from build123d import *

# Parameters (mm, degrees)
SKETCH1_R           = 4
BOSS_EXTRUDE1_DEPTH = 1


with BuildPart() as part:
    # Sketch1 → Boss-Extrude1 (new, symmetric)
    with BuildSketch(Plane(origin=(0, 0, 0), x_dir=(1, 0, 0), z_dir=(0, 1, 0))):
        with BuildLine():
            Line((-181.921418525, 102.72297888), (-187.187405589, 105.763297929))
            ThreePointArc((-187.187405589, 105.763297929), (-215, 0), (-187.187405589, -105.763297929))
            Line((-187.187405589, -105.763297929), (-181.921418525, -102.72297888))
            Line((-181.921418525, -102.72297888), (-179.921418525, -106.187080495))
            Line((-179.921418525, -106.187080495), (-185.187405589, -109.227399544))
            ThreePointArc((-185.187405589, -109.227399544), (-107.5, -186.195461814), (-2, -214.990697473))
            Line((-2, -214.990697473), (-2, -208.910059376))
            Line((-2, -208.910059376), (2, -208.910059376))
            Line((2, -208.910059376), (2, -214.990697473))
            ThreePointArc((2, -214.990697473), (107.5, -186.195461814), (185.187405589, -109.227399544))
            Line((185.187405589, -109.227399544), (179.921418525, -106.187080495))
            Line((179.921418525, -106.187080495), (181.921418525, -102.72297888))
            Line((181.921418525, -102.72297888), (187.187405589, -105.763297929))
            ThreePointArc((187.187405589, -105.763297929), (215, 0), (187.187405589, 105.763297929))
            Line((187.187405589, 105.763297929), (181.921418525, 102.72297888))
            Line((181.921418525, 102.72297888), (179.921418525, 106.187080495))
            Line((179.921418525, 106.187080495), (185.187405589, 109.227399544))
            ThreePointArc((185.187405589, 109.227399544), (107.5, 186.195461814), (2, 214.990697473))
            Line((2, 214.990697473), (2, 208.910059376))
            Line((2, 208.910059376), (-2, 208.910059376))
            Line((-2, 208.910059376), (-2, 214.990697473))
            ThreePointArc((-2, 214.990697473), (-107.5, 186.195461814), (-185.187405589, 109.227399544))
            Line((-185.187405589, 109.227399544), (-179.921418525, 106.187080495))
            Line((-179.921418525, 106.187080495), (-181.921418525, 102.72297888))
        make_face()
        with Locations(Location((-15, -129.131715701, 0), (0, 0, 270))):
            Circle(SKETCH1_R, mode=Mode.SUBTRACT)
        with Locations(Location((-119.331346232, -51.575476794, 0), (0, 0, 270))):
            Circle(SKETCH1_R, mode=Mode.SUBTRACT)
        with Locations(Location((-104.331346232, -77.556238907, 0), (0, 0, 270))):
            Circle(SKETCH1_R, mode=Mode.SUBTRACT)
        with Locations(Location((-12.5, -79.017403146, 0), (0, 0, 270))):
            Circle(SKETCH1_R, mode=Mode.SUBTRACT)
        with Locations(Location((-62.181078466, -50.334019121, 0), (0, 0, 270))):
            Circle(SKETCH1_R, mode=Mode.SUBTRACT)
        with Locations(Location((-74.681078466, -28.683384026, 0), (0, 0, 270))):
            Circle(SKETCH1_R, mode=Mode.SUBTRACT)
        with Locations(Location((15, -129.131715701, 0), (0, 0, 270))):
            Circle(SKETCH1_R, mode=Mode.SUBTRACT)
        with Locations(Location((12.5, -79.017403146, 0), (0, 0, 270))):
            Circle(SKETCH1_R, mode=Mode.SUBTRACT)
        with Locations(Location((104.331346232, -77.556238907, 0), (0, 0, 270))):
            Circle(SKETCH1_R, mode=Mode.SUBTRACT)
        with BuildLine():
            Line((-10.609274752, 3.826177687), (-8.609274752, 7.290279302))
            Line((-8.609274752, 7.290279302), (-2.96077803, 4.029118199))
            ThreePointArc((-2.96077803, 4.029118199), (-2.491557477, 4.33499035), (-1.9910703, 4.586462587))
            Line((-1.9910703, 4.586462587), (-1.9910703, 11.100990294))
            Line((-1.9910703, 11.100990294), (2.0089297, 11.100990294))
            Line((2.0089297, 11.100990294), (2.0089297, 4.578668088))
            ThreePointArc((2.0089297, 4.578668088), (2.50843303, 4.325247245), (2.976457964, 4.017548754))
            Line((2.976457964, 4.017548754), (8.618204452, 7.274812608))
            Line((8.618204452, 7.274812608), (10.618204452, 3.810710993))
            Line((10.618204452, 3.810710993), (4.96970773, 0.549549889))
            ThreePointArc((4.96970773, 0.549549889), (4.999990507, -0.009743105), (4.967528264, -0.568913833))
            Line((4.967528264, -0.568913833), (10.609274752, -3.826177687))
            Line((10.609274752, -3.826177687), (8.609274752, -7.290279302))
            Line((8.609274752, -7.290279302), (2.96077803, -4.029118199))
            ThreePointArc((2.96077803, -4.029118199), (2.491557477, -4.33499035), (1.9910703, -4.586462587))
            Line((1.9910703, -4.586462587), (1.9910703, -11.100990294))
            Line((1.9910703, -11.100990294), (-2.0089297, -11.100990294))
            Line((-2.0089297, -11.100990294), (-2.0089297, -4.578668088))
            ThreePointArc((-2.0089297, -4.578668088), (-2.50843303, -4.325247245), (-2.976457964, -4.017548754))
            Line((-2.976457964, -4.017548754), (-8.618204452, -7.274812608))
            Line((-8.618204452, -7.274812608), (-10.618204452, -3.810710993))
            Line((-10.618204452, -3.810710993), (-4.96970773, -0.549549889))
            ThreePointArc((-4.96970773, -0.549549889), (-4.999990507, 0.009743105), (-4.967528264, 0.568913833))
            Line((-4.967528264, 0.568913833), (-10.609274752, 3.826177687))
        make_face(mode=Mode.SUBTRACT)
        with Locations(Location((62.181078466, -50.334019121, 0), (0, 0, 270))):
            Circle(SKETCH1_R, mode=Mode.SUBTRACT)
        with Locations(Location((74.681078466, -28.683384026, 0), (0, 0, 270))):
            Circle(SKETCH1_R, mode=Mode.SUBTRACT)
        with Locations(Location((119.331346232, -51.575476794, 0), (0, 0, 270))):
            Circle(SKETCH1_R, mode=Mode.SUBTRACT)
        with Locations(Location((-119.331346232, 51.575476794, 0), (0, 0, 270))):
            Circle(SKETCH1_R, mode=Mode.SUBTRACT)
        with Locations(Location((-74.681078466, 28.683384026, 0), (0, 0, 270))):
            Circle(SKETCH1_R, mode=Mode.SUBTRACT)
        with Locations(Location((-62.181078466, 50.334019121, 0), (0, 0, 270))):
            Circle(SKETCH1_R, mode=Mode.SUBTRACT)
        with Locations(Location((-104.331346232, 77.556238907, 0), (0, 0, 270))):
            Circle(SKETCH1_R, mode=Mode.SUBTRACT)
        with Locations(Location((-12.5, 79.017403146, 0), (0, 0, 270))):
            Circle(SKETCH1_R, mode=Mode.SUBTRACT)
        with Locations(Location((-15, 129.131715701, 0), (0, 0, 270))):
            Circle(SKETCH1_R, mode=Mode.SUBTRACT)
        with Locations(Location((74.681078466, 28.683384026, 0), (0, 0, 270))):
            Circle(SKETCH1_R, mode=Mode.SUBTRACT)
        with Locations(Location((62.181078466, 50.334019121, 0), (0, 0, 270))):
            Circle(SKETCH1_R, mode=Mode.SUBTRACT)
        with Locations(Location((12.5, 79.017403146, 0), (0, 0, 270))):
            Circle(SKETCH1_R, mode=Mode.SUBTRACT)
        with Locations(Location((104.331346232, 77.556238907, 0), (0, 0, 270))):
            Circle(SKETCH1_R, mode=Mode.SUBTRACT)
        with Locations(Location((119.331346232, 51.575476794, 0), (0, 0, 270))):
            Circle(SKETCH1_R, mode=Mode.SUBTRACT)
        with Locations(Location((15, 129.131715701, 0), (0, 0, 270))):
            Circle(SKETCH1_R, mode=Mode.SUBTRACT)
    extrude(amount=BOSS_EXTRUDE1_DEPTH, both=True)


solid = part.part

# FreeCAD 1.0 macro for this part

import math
import FreeCAD as App
import Part
import Sketcher

V = App.Vector
Q = App.Units.Quantity

doc = App.newDocument("Part")
body = doc.addObject("PartDesign::Body", "Body")

sketch1 = body.newObject("Sketcher::SketchObject", "Sketch")
sketch1.AttachmentSupport = (doc.getObject("XZ_Plane"), [""])
sketch1.MapMode = "FlatFace"
sketch1.addGeometry([
    Part.LineSegment(V(-181.9, -102.7, 0), V(-187.2, -105.8, 0)),
    Part.ArcOfCircle(Part.Circle(V(0, 0, 0), V(0, 0, 1), 215), math.radians(151), math.radians(209)),
    Part.LineSegment(V(-187.2, 105.8, 0), V(-181.9, 102.7, 0)),
    Part.LineSegment(V(-181.9, 102.7, 0), V(-179.9, 106.2, 0)),
    Part.LineSegment(V(-179.9, 106.2, 0), V(-185.2, 109.2, 0)),
    Part.ArcOfCircle(Part.Circle(V(0, 0, 0), V(0, 0, 1), 215), math.radians(91), math.radians(149)),
    Part.LineSegment(V(-2, 215, 0), V(-2, 208.9, 0)),
    Part.LineSegment(V(-2, 208.9, 0), V(2, 208.9, 0)),
    Part.LineSegment(V(2, 208.9, 0), V(2, 215, 0)),
    Part.ArcOfCircle(Part.Circle(V(0, 0, 0), V(0, 0, 1), 215), math.radians(31), math.radians(89)),
    Part.LineSegment(V(185.2, 109.2, 0), V(179.9, 106.2, 0)),
    Part.LineSegment(V(179.9, 106.2, 0), V(181.9, 102.7, 0)),
    Part.LineSegment(V(181.9, 102.7, 0), V(187.2, 105.8, 0)),
    Part.ArcOfCircle(Part.Circle(V(0, 0, 0), V(0, 0, 1), 215), math.radians(-29), math.radians(29)),
    Part.LineSegment(V(187.2, -105.8, 0), V(181.9, -102.7, 0)),
    Part.LineSegment(V(181.9, -102.7, 0), V(179.9, -106.2, 0)),
    Part.LineSegment(V(179.9, -106.2, 0), V(185.2, -109.2, 0)),
    Part.ArcOfCircle(Part.Circle(V(0, 0, 0), V(0, 0, 1), 215), math.radians(-89), math.radians(-31)),
    Part.LineSegment(V(2, -215, 0), V(2, -208.9, 0)),
    Part.LineSegment(V(2, -208.9, 0), V(-2, -208.9, 0)),
    Part.LineSegment(V(-2, -208.9, 0), V(-2, -215, 0)),
    Part.ArcOfCircle(Part.Circle(V(0, 0, 0), V(0, 0, 1), 215), math.radians(-149), math.radians(-91)),
    Part.LineSegment(V(-185.2, -109.2, 0), V(-179.9, -106.2, 0)),
    Part.LineSegment(V(-179.9, -106.2, 0), V(-181.9, -102.7, 0)),
    Part.Circle(V(-104.3, 77.6, 0), V(0, 0, 1), 4),
    Part.Circle(V(-15, 129.1, 0), V(0, 0, 1), 4),
    Part.Circle(V(-12.5, 79, 0), V(0, 0, 1), 4),
    Part.Circle(V(-119.3, 51.6, 0), V(0, 0, 1), 4),
    Part.Circle(V(-62.2, 50.3, 0), V(0, 0, 1), 4),
    Part.Circle(V(-74.7, 28.7, 0), V(0, 0, 1), 4),
    Part.Circle(V(15, 129.1, 0), V(0, 0, 1), 4),
    Part.Circle(V(12.5, 79, 0), V(0, 0, 1), 4),
    Part.Circle(V(104.3, 77.6, 0), V(0, 0, 1), 4),
    Part.Circle(V(62.2, 50.3, 0), V(0, 0, 1), 4),
    Part.Circle(V(119.3, 51.6, 0), V(0, 0, 1), 4),
    Part.Circle(V(74.7, 28.7, 0), V(0, 0, 1), 4),
    Part.Circle(V(-74.7, -28.7, 0), V(0, 0, 1), 4),
    Part.Circle(V(-119.3, -51.6, 0), V(0, 0, 1), 4),
    Part.Circle(V(-62.2, -50.3, 0), V(0, 0, 1), 4),
    Part.Circle(V(-104.3, -77.6, 0), V(0, 0, 1), 4),
    Part.Circle(V(-12.5, -79, 0), V(0, 0, 1), 4),
    Part.Circle(V(-15, -129.1, 0), V(0, 0, 1), 4),
    Part.LineSegment(V(-5, -0.6, 0), V(-10.6, -3.8, 0)),
    Part.LineSegment(V(-10.6, -3.8, 0), V(-8.6, -7.3, 0)),
    Part.LineSegment(V(-8.6, -7.3, 0), V(-3, -4, 0)),
    Part.ArcOfCircle(Part.Circle(V(0, 0, 0), V(0, 0, 1), 5), math.radians(-126.31), math.radians(-113.47)),
    Part.LineSegment(V(-2, -4.6, 0), V(-2, -11.1, 0)),
    Part.LineSegment(V(-2, -11.1, 0), V(2, -11.1, 0)),
    Part.LineSegment(V(2, -11.1, 0), V(2, -4.6, 0)),
    Part.ArcOfCircle(Part.Circle(V(0, 0, 0), V(0, 0, 1), 5), math.radians(-66.31), math.radians(-53.47)),
    Part.LineSegment(V(3, -4, 0), V(8.6, -7.3, 0)),
    Part.LineSegment(V(8.6, -7.3, 0), V(10.6, -3.8, 0)),
    Part.LineSegment(V(10.6, -3.8, 0), V(5, -0.5, 0)),
    Part.ArcOfCircle(Part.Circle(V(0, 0, 0), V(0, 0, 1), 5), math.radians(-6.31), math.radians(6.53)),
    Part.LineSegment(V(5, 0.6, 0), V(10.6, 3.8, 0)),
    Part.LineSegment(V(10.6, 3.8, 0), V(8.6, 7.3, 0)),
    Part.LineSegment(V(8.6, 7.3, 0), V(3, 4, 0)),
    Part.ArcOfCircle(Part.Circle(V(0, 0, 0), V(0, 0, 1), 5), math.radians(53.69), math.radians(66.53)),
    Part.LineSegment(V(2, 4.6, 0), V(2, 11.1, 0)),
    Part.LineSegment(V(2, 11.1, 0), V(-2, 11.1, 0)),
    Part.LineSegment(V(-2, 11.1, 0), V(-2, 4.6, 0)),
    Part.ArcOfCircle(Part.Circle(V(0, 0, 0), V(0, 0, 1), 5), math.radians(113.69), math.radians(126.53)),
    Part.LineSegment(V(-3, 4, 0), V(-8.6, 7.3, 0)),
    Part.LineSegment(V(-8.6, 7.3, 0), V(-10.6, 3.8, 0)),
    Part.LineSegment(V(-10.6, 3.8, 0), V(-5, 0.5, 0)),
    Part.ArcOfCircle(Part.Circle(V(0, 0, 0), V(0, 0, 1), 5), math.radians(173.69), math.radians(186.53)),
    Part.Circle(V(74.7, -28.7, 0), V(0, 0, 1), 4),
    Part.Circle(V(62.2, -50.3, 0), V(0, 0, 1), 4),
    Part.Circle(V(119.3, -51.6, 0), V(0, 0, 1), 4),
    Part.Circle(V(12.5, -79, 0), V(0, 0, 1), 4),
    Part.Circle(V(15, -129.1, 0), V(0, 0, 1), 4),
    Part.Circle(V(104.3, -77.6, 0), V(0, 0, 1), 4),
], False)
sketch1.addConstraint([
    Sketcher.Constraint("Coincident", 0, 2, 1, 2),
    Sketcher.Constraint("Coincident", 1, 1, 2, 1),
    Sketcher.Constraint("Coincident", 2, 2, 3, 1),
    Sketcher.Constraint("Coincident", 3, 2, 4, 1),
    Sketcher.Constraint("Coincident", 4, 2, 5, 2),
    Sketcher.Constraint("Coincident", 5, 1, 6, 1),
    Sketcher.Constraint("Coincident", 6, 2, 7, 1),
    Sketcher.Constraint("Coincident", 7, 2, 8, 1),
    Sketcher.Constraint("Coincident", 8, 2, 9, 2),
    Sketcher.Constraint("Coincident", 9, 1, 10, 1),
    Sketcher.Constraint("Coincident", 10, 2, 11, 1),
    Sketcher.Constraint("Coincident", 11, 2, 12, 1),
    Sketcher.Constraint("Coincident", 12, 2, 13, 2),
    Sketcher.Constraint("Coincident", 13, 1, 14, 1),
    Sketcher.Constraint("Coincident", 14, 2, 15, 1),
    Sketcher.Constraint("Coincident", 15, 2, 16, 1),
    Sketcher.Constraint("Coincident", 16, 2, 17, 2),
    Sketcher.Constraint("Coincident", 17, 1, 18, 1),
    Sketcher.Constraint("Coincident", 18, 2, 19, 1),
    Sketcher.Constraint("Coincident", 19, 2, 20, 1),
    Sketcher.Constraint("Coincident", 20, 2, 21, 2),
    Sketcher.Constraint("Coincident", 21, 1, 22, 1),
    Sketcher.Constraint("Coincident", 22, 2, 23, 1),
    Sketcher.Constraint("Coincident", 23, 2, 0, 1),
    Sketcher.Constraint("Coincident", 42, 2, 43, 1),
    Sketcher.Constraint("Coincident", 43, 2, 44, 1),
    Sketcher.Constraint("Coincident", 44, 2, 45, 1),
    Sketcher.Constraint("Coincident", 45, 2, 46, 1),
    Sketcher.Constraint("Coincident", 46, 2, 47, 1),
    Sketcher.Constraint("Coincident", 47, 2, 48, 1),
    Sketcher.Constraint("Coincident", 48, 2, 49, 1),
    Sketcher.Constraint("Coincident", 49, 2, 50, 1),
    Sketcher.Constraint("Coincident", 50, 2, 51, 1),
    Sketcher.Constraint("Coincident", 51, 2, 52, 1),
    Sketcher.Constraint("Coincident", 52, 2, 53, 1),
    Sketcher.Constraint("Coincident", 53, 2, 54, 1),
    Sketcher.Constraint("Coincident", 54, 2, 55, 1),
    Sketcher.Constraint("Coincident", 55, 2, 56, 1),
    Sketcher.Constraint("Coincident", 56, 2, 57, 1),
    Sketcher.Constraint("Coincident", 57, 2, 58, 1),
    Sketcher.Constraint("Coincident", 58, 2, 59, 1),
    Sketcher.Constraint("Coincident", 59, 2, 60, 1),
    Sketcher.Constraint("Coincident", 60, 2, 61, 1),
    Sketcher.Constraint("Coincident", 61, 2, 62, 1),
    Sketcher.Constraint("Coincident", 62, 2, 63, 1),
    Sketcher.Constraint("Coincident", 63, 2, 64, 1),
    Sketcher.Constraint("Coincident", 64, 2, 65, 1),
    Sketcher.Constraint("Coincident", 65, 2, 42, 1),
    Sketcher.Constraint("Vertical", 6),
    Sketcher.Constraint("Horizontal", 7),
    Sketcher.Constraint("Vertical", 8),
    Sketcher.Constraint("Vertical", 18),
    Sketcher.Constraint("Horizontal", 19),
    Sketcher.Constraint("Vertical", 20),
    Sketcher.Constraint("Vertical", 46),
    Sketcher.Constraint("Horizontal", 47),
    Sketcher.Constraint("Vertical", 48),
    Sketcher.Constraint("Vertical", 58),
    Sketcher.Constraint("Horizontal", 59),
    Sketcher.Constraint("Vertical", 60),
    Sketcher.Constraint("Coincident", 1, 3, -1, 1),
    Sketcher.Constraint("Coincident", 5, 3, -1, 1),
    Sketcher.Constraint("Coincident", 9, 3, -1, 1),
    Sketcher.Constraint("Coincident", 13, 3, -1, 1),
    Sketcher.Constraint("Coincident", 17, 3, -1, 1),
    Sketcher.Constraint("Coincident", 21, 3, -1, 1),
    Sketcher.Constraint("Coincident", 45, 3, -1, 1),
    Sketcher.Constraint("Coincident", 49, 3, -1, 1),
    Sketcher.Constraint("Coincident", 53, 3, -1, 1),
    Sketcher.Constraint("Coincident", 57, 3, -1, 1),
    Sketcher.Constraint("Coincident", 61, 3, -1, 1),
    Sketcher.Constraint("Coincident", 65, 3, -1, 1),
    Sketcher.Constraint("Equal", 1, 5),
    Sketcher.Constraint("Equal", 5, 9),
    Sketcher.Constraint("Equal", 9, 13),
    Sketcher.Constraint("Equal", 13, 17),
    Sketcher.Constraint("Equal", 17, 21),
    Sketcher.Constraint("Equal", 24, 25),
    Sketcher.Constraint("Equal", 25, 26),
    Sketcher.Constraint("Equal", 26, 27),
    Sketcher.Constraint("Equal", 27, 28),
    Sketcher.Constraint("Equal", 28, 29),
    Sketcher.Constraint("Equal", 29, 30),
    Sketcher.Constraint("Equal", 30, 31),
    Sketcher.Constraint("Equal", 31, 32),
    Sketcher.Constraint("Equal", 32, 33),
    Sketcher.Constraint("Equal", 33, 34),
    Sketcher.Constraint("Equal", 34, 35),
    Sketcher.Constraint("Equal", 35, 36),
    Sketcher.Constraint("Equal", 36, 37),
    Sketcher.Constraint("Equal", 37, 38),
    Sketcher.Constraint("Equal", 38, 39),
    Sketcher.Constraint("Equal", 39, 40),
    Sketcher.Constraint("Equal", 40, 41),
    Sketcher.Constraint("Equal", 45, 49),
    Sketcher.Constraint("Equal", 49, 53),
    Sketcher.Constraint("Equal", 53, 57),
    Sketcher.Constraint("Equal", 57, 61),
    Sketcher.Constraint("Equal", 61, 65),
    Sketcher.Constraint("Equal", 41, 66),
    Sketcher.Constraint("Equal", 66, 67),
    Sketcher.Constraint("Equal", 67, 68),
    Sketcher.Constraint("Equal", 68, 69),
    Sketcher.Constraint("Equal", 69, 70),
    Sketcher.Constraint("Equal", 70, 71),
    Sketcher.Constraint("Symmetric", 35, 3, 36, 3, -1, 1),
    Sketcher.Constraint("Symmetric", 34, 3, 37, 3, -1, 1),
    Sketcher.Constraint("Symmetric", 33, 3, 38, 3, -1, 1),
    Sketcher.Constraint("Symmetric", 32, 3, 39, 3, -1, 1),
    Sketcher.Constraint("Symmetric", 31, 3, 40, 3, -1, 1),
    Sketcher.Constraint("Symmetric", 30, 3, 41, 3, -1, 1),
    Sketcher.Constraint("Symmetric", 29, 3, 66, 3, -1, 1),
    Sketcher.Constraint("Symmetric", 28, 3, 67, 3, -1, 1),
    Sketcher.Constraint("Symmetric", 27, 3, 68, 3, -1, 1),
    Sketcher.Constraint("Symmetric", 26, 3, 69, 3, -1, 1),
    Sketcher.Constraint("Symmetric", 25, 3, 70, 3, -1, 1),
    Sketcher.Constraint("Symmetric", 24, 3, 71, 3, -1, 1),
    Sketcher.Constraint("Symmetric", 2, 2, 14, 2, -1, 1),
    Sketcher.Constraint("Symmetric", 3, 2, 15, 2, -1, 1),
    Sketcher.Constraint("Symmetric", 6, 2, 18, 2, -1, 1),
    Sketcher.Constraint("Symmetric", 10, 2, 22, 2, -1, 1),
    Sketcher.Constraint("Symmetric", 11, 2, 23, 2, -1, 1),
    Sketcher.Constraint("Symmetric", 42, 2, 54, 2, -1, 1),
    Sketcher.Constraint("Symmetric", 43, 2, 55, 2, -1, 1),
    Sketcher.Constraint("Symmetric", 46, 2, 58, 2, -1, 1),
    Sketcher.Constraint("Symmetric", 50, 2, 62, 2, -1, 1),
    Sketcher.Constraint("Symmetric", 51, 2, 63, 2, -1, 1),
    Sketcher.Constraint("Symmetric", 25, 3, 30, 3, -2),
    Sketcher.Constraint("Symmetric", 26, 3, 31, 3, -2),
    Sketcher.Constraint("Symmetric", 24, 3, 32, 3, -2),
    Sketcher.Constraint("Symmetric", 28, 3, 33, 3, -2),
    Sketcher.Constraint("Symmetric", 27, 3, 34, 3, -2),
    Sketcher.Constraint("Symmetric", 29, 3, 35, 3, -2),
    Sketcher.Constraint("Symmetric", 3, 2, 10, 2, -2),
    Sketcher.Constraint("Symmetric", 2, 2, 11, 2, -2),
    Sketcher.Constraint("Perpendicular", 2, 3),
    Sketcher.Constraint("Perpendicular", 3, 4),
    Sketcher.Constraint("Parallel", 0, 10),
    Sketcher.Constraint("Perpendicular", 10, 11),
    Sketcher.Constraint("Perpendicular", 11, 12),
    Sketcher.Constraint("Parallel", 4, 14),
    Sketcher.Constraint("Perpendicular", 15, 16),
    Sketcher.Constraint("Parallel", 12, 22),
    Sketcher.Constraint("Perpendicular", 23, 42),
    Sketcher.Constraint("Perpendicular", 42, 43),
    Sketcher.Constraint("Perpendicular", 43, 44),
    Sketcher.Constraint("Parallel", 16, 50),
    Sketcher.Constraint("Perpendicular", 50, 51),
    Sketcher.Constraint("Perpendicular", 51, 52),
    Sketcher.Constraint("Parallel", 44, 54),
    Sketcher.Constraint("Perpendicular", 55, 56),
    Sketcher.Constraint("Parallel", 52, 62),
    Sketcher.Constraint("Perpendicular", 63, 64),
    Sketcher.Constraint("Horizontal", 5, 1, 8, 2),
    Sketcher.Constraint("Horizontal", 17, 1, 20, 2),
    Sketcher.Constraint("Equal", 19, 47),
    Sketcher.Constraint("Equal", 47, 59),
    Sketcher.Constraint("Equal", 2, 4),
    Sketcher.Constraint("Equal", 23, 43),
    Sketcher.Constraint("Equal", 42, 50),
    Sketcher.Constraint("Equal", 43, 51),
    Sketcher.Constraint("Equal", 44, 52),
    Sketcher.Constraint("Diameter", 24, Q("8 mm")),
    Sketcher.Constraint("Radius", 1, Q("215 mm")),
    Sketcher.Constraint("Radius", 45, Q("5 mm")),
    Sketcher.Constraint("DistanceX", 7, 1, 7, 2, Q("4 mm")),
    Sketcher.Constraint("Angle", 0, Q("-150 deg")),
    Sketcher.Constraint("Distance", 3, Q("4 mm")),
    Sketcher.Constraint("DistanceX", 25, 3, -1, 1, Q("15 mm")),
    Sketcher.Constraint("DistanceX", 26, 3, -1, 1, Q("12.5 mm")),
    Sketcher.Constraint("DistanceY", 6, 2, 6, 1, Q("6.080638 mm")),
    Sketcher.Constraint("Distance", 0, Q("6.080638 mm")),
    Sketcher.Constraint("DistanceY", 46, 2, 46, 1, Q("6.514528 mm")),
    Sketcher.Constraint("DistanceY", 48, 1, 48, 2, Q("6.522322 mm")),
    Sketcher.Constraint("DistanceY", -1, 1, 24, 3, Q("77.556239 mm")),
    Sketcher.Constraint("DistanceX", 28, 3, -1, 1, Q("62.181078 mm")),
    Sketcher.Constraint("DistanceY", -1, 1, 28, 3, Q("50.334019 mm")),
    Sketcher.Constraint("DistanceX", 29, 3, -1, 1, Q("74.681078 mm")),
    Sketcher.Constraint("DistanceY", 43, 2, -1, 1, Q("7.290279 mm")),
    Sketcher.Constraint("DistanceX", 44, 2, -1, 1, Q("2.960778 mm")),
    Sketcher.Constraint("DistanceX", 24, 3, -1, 1, Q("104.331346 mm")),
    Sketcher.Constraint("DistanceY", -1, 1, 25, 3, Q("129.131716 mm")),
    Sketcher.Constraint("DistanceY", -1, 1, 26, 3, Q("79.017403 mm")),
    Sketcher.Constraint("DistanceX", 27, 3, -1, 1, Q("119.331346 mm")),
    Sketcher.Constraint("DistanceY", -1, 1, 27, 3, Q("51.575477 mm")),
    Sketcher.Constraint("DistanceY", -1, 1, 29, 3, Q("28.683384 mm")),
])
pad1 = body.newObject("PartDesign::Pad", "Pad")
pad1.Profile = sketch1
pad1.Length = 2
pad1.Midplane = True

doc.recompute()
